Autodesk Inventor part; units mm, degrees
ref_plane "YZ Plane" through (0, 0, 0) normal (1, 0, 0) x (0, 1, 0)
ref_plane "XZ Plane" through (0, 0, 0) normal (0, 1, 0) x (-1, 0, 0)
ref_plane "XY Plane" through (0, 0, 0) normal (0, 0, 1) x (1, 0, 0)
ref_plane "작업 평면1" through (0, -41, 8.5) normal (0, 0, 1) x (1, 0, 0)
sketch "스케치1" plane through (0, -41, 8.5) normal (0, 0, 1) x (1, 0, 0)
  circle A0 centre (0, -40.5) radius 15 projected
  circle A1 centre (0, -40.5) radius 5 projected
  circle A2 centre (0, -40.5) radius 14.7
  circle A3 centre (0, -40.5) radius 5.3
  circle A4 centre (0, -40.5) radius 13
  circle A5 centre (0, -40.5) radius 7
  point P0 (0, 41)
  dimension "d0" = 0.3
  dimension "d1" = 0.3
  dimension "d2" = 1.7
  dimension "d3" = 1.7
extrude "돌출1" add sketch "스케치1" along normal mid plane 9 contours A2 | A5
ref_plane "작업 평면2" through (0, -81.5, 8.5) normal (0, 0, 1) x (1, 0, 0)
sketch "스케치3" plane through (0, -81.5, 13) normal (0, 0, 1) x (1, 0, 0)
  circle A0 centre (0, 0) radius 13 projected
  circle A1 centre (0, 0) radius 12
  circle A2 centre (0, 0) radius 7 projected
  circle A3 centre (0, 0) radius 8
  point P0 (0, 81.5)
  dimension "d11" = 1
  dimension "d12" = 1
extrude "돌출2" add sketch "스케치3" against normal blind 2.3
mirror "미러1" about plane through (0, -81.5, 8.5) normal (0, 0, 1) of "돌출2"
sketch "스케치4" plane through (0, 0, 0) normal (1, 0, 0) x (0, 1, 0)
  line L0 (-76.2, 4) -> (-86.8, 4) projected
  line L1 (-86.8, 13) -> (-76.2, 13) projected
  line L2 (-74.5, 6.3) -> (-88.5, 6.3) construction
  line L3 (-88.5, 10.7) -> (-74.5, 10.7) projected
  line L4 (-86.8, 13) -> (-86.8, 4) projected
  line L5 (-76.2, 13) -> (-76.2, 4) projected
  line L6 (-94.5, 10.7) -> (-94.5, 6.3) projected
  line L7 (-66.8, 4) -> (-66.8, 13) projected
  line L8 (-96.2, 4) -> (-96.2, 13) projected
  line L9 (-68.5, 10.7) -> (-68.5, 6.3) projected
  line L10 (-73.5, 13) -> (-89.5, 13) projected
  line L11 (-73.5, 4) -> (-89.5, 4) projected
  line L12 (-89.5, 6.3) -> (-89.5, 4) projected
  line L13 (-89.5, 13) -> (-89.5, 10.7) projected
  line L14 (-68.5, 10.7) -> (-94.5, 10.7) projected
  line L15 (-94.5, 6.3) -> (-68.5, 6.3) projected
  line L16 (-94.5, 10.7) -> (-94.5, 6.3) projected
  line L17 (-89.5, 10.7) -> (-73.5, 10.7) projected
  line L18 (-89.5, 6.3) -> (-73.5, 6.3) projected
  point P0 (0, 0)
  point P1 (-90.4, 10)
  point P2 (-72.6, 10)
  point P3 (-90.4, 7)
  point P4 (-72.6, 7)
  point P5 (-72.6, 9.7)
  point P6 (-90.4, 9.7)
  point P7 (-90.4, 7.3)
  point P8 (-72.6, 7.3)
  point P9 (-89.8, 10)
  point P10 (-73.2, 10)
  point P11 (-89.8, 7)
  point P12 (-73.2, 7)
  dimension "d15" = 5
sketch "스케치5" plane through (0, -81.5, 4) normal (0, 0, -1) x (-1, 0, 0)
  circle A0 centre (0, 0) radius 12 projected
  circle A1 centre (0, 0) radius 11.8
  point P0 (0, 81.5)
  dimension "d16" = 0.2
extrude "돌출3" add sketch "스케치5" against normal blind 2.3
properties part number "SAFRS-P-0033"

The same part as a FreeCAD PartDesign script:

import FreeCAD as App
import Part
import Sketcher
Q = App.Units.Quantity

doc = App.newDocument("Part")
body = doc.addObject("PartDesign::Body", "Body")
body.AllowCompound = True

sketch1 = doc.addObject("Sketcher::SketchObject", "Sketch")
body.addObject(sketch1)
sketch1.AttachmentSupport = (doc.XY_Plane, [""])
sketch1.MapMode = "FlatFace"
sketch1.AttachmentOffset = App.Placement(App.Vector(0, 0, 8.5), App.Rotation())
sketch1.addGeometry([
    Part.Circle(App.Vector(0, -82, 0), App.Vector(0, 0, 1), 15),
    Part.Circle(App.Vector(0, -82, 0), App.Vector(0, 0, 1), 13),
    Part.Circle(App.Vector(0, -82, 0), App.Vector(0, 0, 1), 7),
    Part.Circle(App.Vector(0, -82, 0), App.Vector(0, 0, 1), 5),
], False)
sketch1.addConstraint([
    Sketcher.Constraint("Coincident", 1, 3, 0, 3),
    Sketcher.Constraint("Coincident", 2, 3, 0, 3),
    Sketcher.Constraint("Coincident", 3, 3, 0, 3),
    Sketcher.Constraint("PointOnObject", 0, 3, -2),
    Sketcher.Constraint("Diameter", 1, Q("26 mm")),
    Sketcher.Constraint("Diameter", 2, Q("14 mm")),
    Sketcher.Constraint("Diameter", 0, Q("29.4 mm")),
    Sketcher.Constraint("Diameter", 3, Q("10.6 mm")),
    Sketcher.Constraint("DistanceY", 0, 3, -1, 1, Q("81.5 mm")),
])
pad1 = doc.addObject("PartDesign::Pad", "Pad")
body.addObject(pad1)
pad1.Profile = sketch1
pad1.Length = 9
pad1.Midplane = True

sketch2 = doc.addObject("Sketcher::SketchObject", "Sketch001")
body.addObject(sketch2)
sketch2.AttachmentSupport = (doc.XY_Plane, [""])
sketch2.MapMode = "FlatFace"
sketch2.AttachmentOffset = App.Placement(App.Vector(0, 0, 13), App.Rotation())
sketch2.addGeometry([
    Part.Circle(App.Vector(0, -82, 0), App.Vector(0, 0, 1), 13),
    Part.Circle(App.Vector(0, -82, 0), App.Vector(0, 0, 1), 12),
    Part.Circle(App.Vector(0, -82, 0), App.Vector(0, 0, 1), 8),
    Part.Circle(App.Vector(0, -82, 0), App.Vector(0, 0, 1), 7),
], False)
sketch2.addConstraint([
    Sketcher.Constraint("Coincident", 1, 3, 0, 3),
    Sketcher.Constraint("Coincident", 2, 3, 0, 3),
    Sketcher.Constraint("Coincident", 3, 3, 0, 3),
    Sketcher.Constraint("PointOnObject", 0, 3, -2),
    Sketcher.Constraint("Diameter", 0, Q("26 mm")),
    Sketcher.Constraint("Diameter", 1, Q("24 mm")),
    Sketcher.Constraint("Diameter", 2, Q("16 mm")),
    Sketcher.Constraint("Diameter", 3, Q("14 mm")),
    Sketcher.Constraint("DistanceY", 0, 3, -1, 1, Q("81.5 mm")),
])
pad2 = doc.addObject("PartDesign::Pad", "Pad001")
body.addObject(pad2)
pad2.Profile = sketch2
pad2.Length = 2.3
pad2.Reversed = True
doc.recompute()

datumplane = doc.addObject("PartDesign::Plane", "DatumPlane")
body.addObject(datumplane)
datumplane.AttachmentSupport = (doc.XY_Plane, [""])
datumplane.MapMode = "FlatFace"
datumplane.AttachmentOffset = App.Placement(App.Vector(0, 0, 8.5), App.Rotation())
mirrored = doc.addObject("PartDesign::Mirrored", "Mirrored")
body.addObject(mirrored)
mirrored.Originals = [pad2]
mirrored.MirrorPlane = (datumplane, [""])
body.Tip = mirrored

sketch3 = doc.addObject("Sketcher::SketchObject", "Sketch002")
body.addObject(sketch3)
sketch3.AttachmentSupport = (doc.XY_Plane, [""])
sketch3.MapMode = "FlatFace"
sketch3.AttachmentOffset = App.Placement(App.Vector(0, 0, 4), App.Rotation())
sketch3.addGeometry([
    Part.Circle(App.Vector(0, -82, 0), App.Vector(0, 0, 1), 12),
    Part.Circle(App.Vector(0, -82, 0), App.Vector(0, 0, 1), 12),
], False)
sketch3.addConstraint([
    Sketcher.Constraint("Coincident", 1, 3, 0, 3),
    Sketcher.Constraint("PointOnObject", 0, 3, -2),
    Sketcher.Constraint("Diameter", 0, Q("24 mm")),
    Sketcher.Constraint("Diameter", 1, Q("23.6 mm")),
    Sketcher.Constraint("DistanceY", 0, 3, -1, 1, Q("81.5 mm")),
])
pad3 = doc.addObject("PartDesign::Pad", "Pad002")
body.addObject(pad3)
pad3.Profile = sketch3
pad3.Length = 2.3

doc.recompute()
